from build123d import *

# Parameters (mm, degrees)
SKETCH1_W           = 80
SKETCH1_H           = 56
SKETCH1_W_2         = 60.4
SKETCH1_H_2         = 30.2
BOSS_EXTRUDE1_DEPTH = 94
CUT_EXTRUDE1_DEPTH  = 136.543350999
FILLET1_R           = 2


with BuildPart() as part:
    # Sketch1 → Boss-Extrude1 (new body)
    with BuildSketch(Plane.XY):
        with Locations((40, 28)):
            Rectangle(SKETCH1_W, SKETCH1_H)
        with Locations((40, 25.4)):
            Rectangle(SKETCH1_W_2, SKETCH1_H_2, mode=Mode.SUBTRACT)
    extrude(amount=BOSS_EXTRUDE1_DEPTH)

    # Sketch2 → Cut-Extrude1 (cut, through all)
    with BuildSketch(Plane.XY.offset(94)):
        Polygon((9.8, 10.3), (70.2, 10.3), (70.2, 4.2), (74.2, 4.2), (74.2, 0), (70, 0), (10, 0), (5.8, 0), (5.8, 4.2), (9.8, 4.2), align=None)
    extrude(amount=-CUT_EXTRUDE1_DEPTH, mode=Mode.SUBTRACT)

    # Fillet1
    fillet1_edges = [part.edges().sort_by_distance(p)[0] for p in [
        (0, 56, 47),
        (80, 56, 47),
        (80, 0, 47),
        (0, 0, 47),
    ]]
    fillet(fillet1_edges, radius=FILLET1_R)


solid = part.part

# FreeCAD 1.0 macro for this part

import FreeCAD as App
import Part
import Sketcher
from FreeCAD import Vector


def edges_at(feature, points):
    """Names of the edges that pass closest to the given points."""
    edges = feature.Shape.Edges
    near = lambda p: min(range(len(edges)), key=lambda i: edges[i].distToShape(Part.Vertex(*p))[0])
    return sorted({f"Edge{near(p) + 1}" for p in points})


def add_polygon(sketch, points):
    """Adds a closed chain of lines whose ends are joined by coincident constraints."""
    first, n = sketch.GeometryCount, len(points)
    for a, b in zip(points, points[1:] + points[:1]):
        sketch.addGeometry(Part.LineSegment(App.Vector(*a, 0), App.Vector(*b, 0)), False)
    for i in range(n):
        sketch.addConstraint(Sketcher.Constraint("Coincident", first + i, 2, first + (i + 1) % n, 1))

doc = App.newDocument("Part")
body = doc.addObject("PartDesign::Body", "Body")

# Sketch on XY plane
sketch1 = body.newObject("Sketcher::SketchObject", "Sketch")
sketch1.AttachmentSupport = (doc.getObject("XY_Plane"), [""])
sketch1.MapMode = "FlatFace"
add_polygon(sketch1, [(0, 56), (0, 0), (80, 0), (80, 56)])  # lines 0-3
add_polygon(sketch1, [(70, 10), (10, 10), (10, 40), (70, 40)])  # lines 4-7
sketch1.addConstraint([
    Sketcher.Constraint("Vertical", 0),
    Sketcher.Constraint("Horizontal", 1),
    Sketcher.Constraint("Vertical", 2),
    Sketcher.Constraint("Horizontal", 3),
    Sketcher.Constraint("Horizontal", 4),
    Sketcher.Constraint("Vertical", 5),
    Sketcher.Constraint("Horizontal", 6),
    Sketcher.Constraint("Vertical", 7),
    Sketcher.Constraint("Coincident", 0, 2, -1, 1),
    Sketcher.Constraint("DistanceX", 1, 1, 1, 2, 80.0),
    Sketcher.Constraint("DistanceY", 0, 2, 0, 1, 56.0),
    Sketcher.Constraint("DistanceX", 4, 2, 4, 1, 60.4),
    Sketcher.Constraint("DistanceY", 5, 1, 5, 2, 30.2),
    Sketcher.Constraint("DistanceX", -1, 1, 4, 2, 9.8),
    Sketcher.Constraint("DistanceY", -1, 1, 4, 2, 10.3),
])
pad1 = body.newObject("PartDesign::Pad", "Pad")
pad1.Profile = sketch1
pad1.Length = 94

# Sketch on XY plane
sketch2 = body.newObject("Sketcher::SketchObject", "Sketch001")
sketch2.AttachmentSupport = (doc.getObject("XY_Plane"), [""])
sketch2.MapMode = "FlatFace"
sketch2.AttachmentOffset = App.Placement(Vector(0, 0, 94), App.Rotation())
add_polygon(sketch2, [(70.2, 10.3), (9.8, 10.3), (9.8, 4.2), (5.8, 4.2), (5.8, 0), (74.2, 0), (74.2, 4.2), (70.2, 4.2)])  # lines 0-7
sketch2.addConstraint([
    Sketcher.Constraint("Horizontal", 0),
    Sketcher.Constraint("Vertical", 1),
    Sketcher.Constraint("Horizontal", 2),
    Sketcher.Constraint("Vertical", 3),
    Sketcher.Constraint("Horizontal", 4),
    Sketcher.Constraint("Vertical", 5),
    Sketcher.Constraint("Horizontal", 6),
    Sketcher.Constraint("Vertical", 7),
    Sketcher.Constraint("PointOnObject", 3, 2, -1),
    Sketcher.Constraint("Horizontal", 2, 2, 5, 2),
    Sketcher.Constraint("Equal", 2, 6),
    Sketcher.Constraint("DistanceX", 2, 2, 2, 1, 4.0),
    Sketcher.Constraint("DistanceX", 0, 2, 0, 1, 60.4),
    Sketcher.Constraint("DistanceY", 1, 2, 1, 1, 6.1),
    Sketcher.Constraint("DistanceY", 3, 2, 3, 1, 4.2),
    Sketcher.Constraint("DistanceX", -1, 1, 0, 2, 9.8),
])
pocket1 = body.newObject("PartDesign::Pocket", "Pocket")
pocket1.Profile = sketch2
pocket1.Type = "ThroughAll"
doc.recompute()

fillet = body.newObject("PartDesign::Fillet", "Fillet")
fillet.Base = (pocket1, edges_at(pocket1, [
    (0, 56, 47),
    (80, 56, 47),
    (80, 0, 47),
    (0, 0, 47),
]))
fillet.Radius = 2

doc.recompute()
